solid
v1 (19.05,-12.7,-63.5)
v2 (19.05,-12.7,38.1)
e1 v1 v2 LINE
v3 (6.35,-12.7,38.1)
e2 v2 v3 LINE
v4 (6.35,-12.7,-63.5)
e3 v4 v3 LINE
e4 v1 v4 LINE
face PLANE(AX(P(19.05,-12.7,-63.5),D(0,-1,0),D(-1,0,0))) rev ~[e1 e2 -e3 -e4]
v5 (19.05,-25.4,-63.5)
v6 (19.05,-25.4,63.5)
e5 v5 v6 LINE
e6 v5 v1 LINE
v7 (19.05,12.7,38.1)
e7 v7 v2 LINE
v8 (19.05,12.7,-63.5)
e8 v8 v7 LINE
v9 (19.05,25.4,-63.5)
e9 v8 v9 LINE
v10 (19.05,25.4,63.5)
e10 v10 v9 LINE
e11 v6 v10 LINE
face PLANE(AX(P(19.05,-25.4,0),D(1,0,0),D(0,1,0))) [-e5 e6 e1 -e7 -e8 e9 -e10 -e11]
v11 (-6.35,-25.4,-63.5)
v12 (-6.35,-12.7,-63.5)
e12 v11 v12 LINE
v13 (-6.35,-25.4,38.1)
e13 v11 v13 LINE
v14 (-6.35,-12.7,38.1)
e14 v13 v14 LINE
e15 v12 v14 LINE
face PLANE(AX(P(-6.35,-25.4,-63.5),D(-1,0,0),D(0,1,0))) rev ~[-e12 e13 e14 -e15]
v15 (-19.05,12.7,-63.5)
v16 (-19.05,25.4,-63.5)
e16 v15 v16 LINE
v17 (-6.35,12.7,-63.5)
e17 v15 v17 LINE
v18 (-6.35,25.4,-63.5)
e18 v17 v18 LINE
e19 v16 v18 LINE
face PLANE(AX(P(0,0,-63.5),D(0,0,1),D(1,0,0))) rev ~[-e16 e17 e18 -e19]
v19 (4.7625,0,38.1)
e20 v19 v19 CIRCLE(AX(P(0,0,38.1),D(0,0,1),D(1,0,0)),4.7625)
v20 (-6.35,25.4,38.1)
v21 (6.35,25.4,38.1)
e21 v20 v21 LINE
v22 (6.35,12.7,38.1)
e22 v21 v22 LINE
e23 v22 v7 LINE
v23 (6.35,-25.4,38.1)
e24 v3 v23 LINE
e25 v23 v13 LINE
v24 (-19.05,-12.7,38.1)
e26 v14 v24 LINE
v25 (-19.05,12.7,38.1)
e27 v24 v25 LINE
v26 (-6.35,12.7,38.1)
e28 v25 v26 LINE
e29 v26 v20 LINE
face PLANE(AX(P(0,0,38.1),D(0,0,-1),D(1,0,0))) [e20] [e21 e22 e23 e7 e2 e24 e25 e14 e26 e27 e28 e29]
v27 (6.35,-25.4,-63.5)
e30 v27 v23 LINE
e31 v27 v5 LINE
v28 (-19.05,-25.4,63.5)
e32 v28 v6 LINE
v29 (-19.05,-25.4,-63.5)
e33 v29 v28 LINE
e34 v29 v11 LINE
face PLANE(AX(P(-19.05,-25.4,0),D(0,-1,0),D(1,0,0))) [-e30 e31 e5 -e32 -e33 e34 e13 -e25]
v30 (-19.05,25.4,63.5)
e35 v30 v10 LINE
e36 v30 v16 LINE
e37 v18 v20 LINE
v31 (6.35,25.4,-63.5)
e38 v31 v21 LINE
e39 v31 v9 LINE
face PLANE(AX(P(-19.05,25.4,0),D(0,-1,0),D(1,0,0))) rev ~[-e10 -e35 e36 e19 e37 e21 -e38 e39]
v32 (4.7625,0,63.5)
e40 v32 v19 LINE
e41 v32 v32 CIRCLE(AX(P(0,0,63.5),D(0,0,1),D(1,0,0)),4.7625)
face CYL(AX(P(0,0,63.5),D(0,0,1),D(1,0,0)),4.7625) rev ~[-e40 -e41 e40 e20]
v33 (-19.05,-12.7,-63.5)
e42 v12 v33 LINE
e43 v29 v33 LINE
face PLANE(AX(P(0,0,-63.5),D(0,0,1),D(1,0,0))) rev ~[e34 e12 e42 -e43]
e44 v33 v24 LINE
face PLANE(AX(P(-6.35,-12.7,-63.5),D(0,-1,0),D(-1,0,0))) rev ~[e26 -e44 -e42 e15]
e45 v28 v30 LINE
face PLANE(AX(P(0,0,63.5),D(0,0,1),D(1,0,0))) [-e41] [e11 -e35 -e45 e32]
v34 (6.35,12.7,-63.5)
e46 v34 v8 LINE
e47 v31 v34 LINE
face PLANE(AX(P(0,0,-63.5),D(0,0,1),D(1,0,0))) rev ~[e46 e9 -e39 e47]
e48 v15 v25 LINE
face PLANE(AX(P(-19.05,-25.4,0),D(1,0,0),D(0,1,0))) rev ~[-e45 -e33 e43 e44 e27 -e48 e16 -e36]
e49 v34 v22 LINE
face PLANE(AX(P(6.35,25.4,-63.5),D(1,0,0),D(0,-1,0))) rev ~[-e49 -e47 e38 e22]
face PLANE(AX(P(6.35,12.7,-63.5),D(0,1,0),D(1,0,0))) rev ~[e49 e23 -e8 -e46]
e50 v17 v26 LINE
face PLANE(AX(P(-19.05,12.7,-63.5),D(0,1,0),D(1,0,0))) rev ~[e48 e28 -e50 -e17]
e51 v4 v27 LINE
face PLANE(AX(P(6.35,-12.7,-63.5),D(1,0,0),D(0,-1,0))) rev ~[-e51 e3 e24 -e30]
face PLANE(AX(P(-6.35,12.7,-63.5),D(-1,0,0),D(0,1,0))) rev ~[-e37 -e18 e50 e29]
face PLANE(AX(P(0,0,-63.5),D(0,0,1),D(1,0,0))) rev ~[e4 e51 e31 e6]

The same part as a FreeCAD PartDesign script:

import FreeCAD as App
import Part
import Sketcher
Q = App.Units.Quantity


def add_polygon(sketch, points):
    """Adds a closed chain of lines whose ends are joined by coincident constraints."""
    first, n = sketch.GeometryCount, len(points)
    for a, b in zip(points, points[1:] + points[:1]):
        sketch.addGeometry(Part.LineSegment(App.Vector(*a, 0), App.Vector(*b, 0)), False)
    for i in range(n):
        sketch.addConstraint(Sketcher.Constraint("Coincident", first + i, 2, first + (i + 1) % n, 1))

doc = App.newDocument("Part")
body = doc.addObject("PartDesign::Body", "Body")

# Sketch on XY plane
sketch1 = body.newObject("Sketcher::SketchObject", "Sketch")
sketch1.AttachmentSupport = (doc.getObject("XY_Plane"), [""])
sketch1.MapMode = "FlatFace"
add_polygon(sketch1, [(-19, 25), (-19, -25), (19, -25), (19, 25)])  # lines 0-3
sketch1.addConstraint(Sketcher.Constraint("Vertical", 0))
sketch1.addConstraint(Sketcher.Constraint("Horizontal", 1))
sketch1.addConstraint(Sketcher.Constraint("Vertical", 2))
sketch1.addConstraint(Sketcher.Constraint("Horizontal", 3))
sketch1.addConstraint(Sketcher.Constraint("Symmetric", 0, 2, 2, 2, -1, 1))
sketch1.addConstraint(Sketcher.Constraint("DistanceY", 0, 2, 0, 1, Q("2 in")))
sketch1.addConstraint(Sketcher.Constraint("DistanceX", 1, 1, 1, 2, Q("1.5 in")))
pad1 = body.newObject("PartDesign::Pad", "Pad")
pad1.Profile = sketch1
pad1.Length = Q("5 in")
pad1.Midplane = True

# Sketch on XY plane
sketch2 = body.newObject("Sketcher::SketchObject", "Sketch001")
sketch2.AttachmentSupport = (doc.getObject("XY_Plane"), [""])
sketch2.MapMode = "FlatFace"
sketch2.AttachmentOffset = App.Placement(App.Vector(0, 0, -2.5 * 25.4), App.Rotation())
add_polygon(sketch2, [(6, -25), (-6, -25), (-6, -13), (-19, -13), (-19, 13), (-6, 13), (-6, 25), (6, 25), (6, 13), (19, 13), (19, -13), (6, -13)])  # lines 0-11
sketch2.addConstraint(Sketcher.Constraint("Horizontal", 0))
sketch2.addConstraint(Sketcher.Constraint("Vertical", 1))
sketch2.addConstraint(Sketcher.Constraint("Horizontal", 2))
sketch2.addConstraint(Sketcher.Constraint("Vertical", 3))
sketch2.addConstraint(Sketcher.Constraint("Horizontal", 4))
sketch2.addConstraint(Sketcher.Constraint("Vertical", 5))
sketch2.addConstraint(Sketcher.Constraint("Horizontal", 6))
sketch2.addConstraint(Sketcher.Constraint("Vertical", 7))
sketch2.addConstraint(Sketcher.Constraint("Horizontal", 8))
sketch2.addConstraint(Sketcher.Constraint("Vertical", 9))
sketch2.addConstraint(Sketcher.Constraint("Horizontal", 10))
sketch2.addConstraint(Sketcher.Constraint("Vertical", 11))
sketch2.addConstraint(Sketcher.Constraint("Symmetric", 0, 2, 6, 2, -1, 1))
sketch2.addConstraint(Sketcher.Constraint("Symmetric", 2, 2, 8, 2, -1, 1))
sketch2.addConstraint(Sketcher.Constraint("Symmetric", 4, 2, 10, 2, -1, 1))
sketch2.addConstraint(Sketcher.Constraint("Symmetric", 4, 2, 7, 2, -2))
sketch2.addConstraint(Sketcher.Constraint("Equal", 0, 2))
sketch2.addConstraint(Sketcher.Constraint("Equal", 10, 1))
sketch2.addConstraint(Sketcher.Constraint("DistanceY", 3, 1, 3, 2, Q("1 in")))
sketch2.addConstraint(Sketcher.Constraint("DistanceX", 0, 2, 0, 1, Q("0.5 in")))
pocket1 = body.newObject("PartDesign::Pocket", "Pocket")
pocket1.Profile = sketch2
pocket1.Length = Q("4 in")
pocket1.Reversed = True

# Sketch on XY plane
sketch3 = body.newObject("Sketcher::SketchObject", "Sketch002")
sketch3.AttachmentSupport = (doc.getObject("XY_Plane"), [""])
sketch3.MapMode = "FlatFace"
sketch3.AttachmentOffset = App.Placement(App.Vector(0, 0, 2.5 * 25.4), App.Rotation())
sketch3.addGeometry(Part.Circle(App.Vector(0, 0, 0), App.Vector(0, 0, 1), 4.8), False)
sketch3.addConstraint(Sketcher.Constraint("Coincident", 0, 3, -1, 1))
sketch3.addConstraint(Sketcher.Constraint("Diameter", 0, Q("0.375 in")))
pocket2 = body.newObject("PartDesign::Pocket", "Pocket001")
pocket2.Profile = sketch3
pocket2.Length = Q("1 in")

doc.recompute()
